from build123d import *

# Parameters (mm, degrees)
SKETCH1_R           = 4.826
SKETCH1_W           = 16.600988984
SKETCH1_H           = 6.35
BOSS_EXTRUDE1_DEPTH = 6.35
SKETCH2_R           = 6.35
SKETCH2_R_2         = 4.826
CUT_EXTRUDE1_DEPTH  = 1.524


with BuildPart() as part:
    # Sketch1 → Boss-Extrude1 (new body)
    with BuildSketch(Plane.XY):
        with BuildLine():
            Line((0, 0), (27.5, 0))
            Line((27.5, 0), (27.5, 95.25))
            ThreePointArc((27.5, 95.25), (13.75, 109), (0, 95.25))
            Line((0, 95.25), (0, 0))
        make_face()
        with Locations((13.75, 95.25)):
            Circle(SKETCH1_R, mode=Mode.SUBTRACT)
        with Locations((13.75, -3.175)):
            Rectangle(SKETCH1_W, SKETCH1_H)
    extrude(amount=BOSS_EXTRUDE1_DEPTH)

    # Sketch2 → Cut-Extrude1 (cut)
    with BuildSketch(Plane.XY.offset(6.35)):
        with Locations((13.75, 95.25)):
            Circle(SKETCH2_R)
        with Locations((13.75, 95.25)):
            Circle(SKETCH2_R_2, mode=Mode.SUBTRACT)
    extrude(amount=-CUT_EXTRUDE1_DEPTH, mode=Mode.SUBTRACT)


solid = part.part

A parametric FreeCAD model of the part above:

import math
import FreeCAD as App
import Part
import Sketcher
from FreeCAD import Vector
Q = App.Units.Quantity

doc = App.newDocument("Part")
params = doc.addObject("Spreadsheet::Sheet", "Params")
for row, (alias, value) in enumerate([
    ("sketch1_diameter", "0.38 in"),
    ("sketch1_height", "0.25 in"),
    ("pad1_length", "0.25 in"),
    ("sketch2_diameter", "0.5 in"),
    ("sketch2_diameter2", "0.38 in"),
    ("pocket1_length", "0.06 in"),
], start=1):
    params.set(f"A{row}", alias)
    params.set(f"B{row}", "=" + value)
    params.setAlias(f"B{row}", alias)

body = doc.addObject("PartDesign::Body", "Body")

# Sketch on XY plane
sketch1 = body.newObject("Sketcher::SketchObject", "Sketch")
sketch1.AttachmentSupport = (doc.getObject("XY_Plane"), [""])
sketch1.MapMode = "FlatFace"
sketch1.addGeometry(Part.LineSegment(Vector(0, 0, 0), Vector(5.449506, 0, 0)), False)
sketch1.addGeometry(Part.LineSegment(Vector(5.449506, 0, 0), Vector(5.449506, -6.35, 0)), False)
sketch1.addGeometry(Part.LineSegment(Vector(5.449506, -6.35, 0), Vector(22.050494, -6.35, 0)), False)
sketch1.addGeometry(Part.LineSegment(Vector(22.050494, -6.35, 0), Vector(22.050494, 0, 0)), False)
sketch1.addGeometry(Part.LineSegment(Vector(22.050494, 0, 0), Vector(27.5, 0, 0)), False)
sketch1.addGeometry(Part.LineSegment(Vector(27.5, 0, 0), Vector(27.5, 95.25, 0)), False)
sketch1.addGeometry(Part.ArcOfCircle(Part.Circle(Vector(13.75, 95.25, 0), Vector(0, 0, 1), 13.75), math.radians(0), math.radians(180)), False)
sketch1.addGeometry(Part.LineSegment(Vector(0, 95.25, 0), Vector(0, 0, 0)), False)
sketch1.addGeometry(Part.Circle(Vector(13.75, 95.25, 0), Vector(0, 0, 1), 4.826), False)
sketch1.addConstraint(Sketcher.Constraint("Coincident", 0, 2, 1, 1))
sketch1.addConstraint(Sketcher.Constraint("Coincident", 1, 2, 2, 1))
sketch1.addConstraint(Sketcher.Constraint("Coincident", 2, 2, 3, 1))
sketch1.addConstraint(Sketcher.Constraint("Coincident", 3, 2, 4, 1))
sketch1.addConstraint(Sketcher.Constraint("Coincident", 4, 2, 5, 1))
sketch1.addConstraint(Sketcher.Constraint("Tangent", 5, 2, 6, 1))
sketch1.addConstraint(Sketcher.Constraint("Tangent", 6, 2, 7, 1))
sketch1.addConstraint(Sketcher.Constraint("Coincident", 7, 2, 0, 1))
sketch1.addConstraint(Sketcher.Constraint("Horizontal", 0))
sketch1.addConstraint(Sketcher.Constraint("Vertical", 1))
sketch1.addConstraint(Sketcher.Constraint("Horizontal", 2))
sketch1.addConstraint(Sketcher.Constraint("Vertical", 3))
sketch1.addConstraint(Sketcher.Constraint("Horizontal", 4))
sketch1.addConstraint(Sketcher.Constraint("Vertical", 5))
sketch1.addConstraint(Sketcher.Constraint("Vertical", 7))
sketch1.addConstraint(Sketcher.Constraint("Coincident", 7, 2, -1, 1))
sketch1.addConstraint(Sketcher.Constraint("Coincident", 8, 3, 6, 3))
sketch1.addConstraint(Sketcher.Constraint("PointOnObject", 3, 2, -1))
sketch1.addConstraint(Sketcher.Constraint("Equal", 0, 4))
sketch1.addConstraint(Sketcher.Constraint("Diameter", 8, Q("0.38 in")))
sketch1.addConstraint(Sketcher.Constraint("DistanceY", 1, 2, 6, 3, Q("4 in")))
sketch1.addConstraint(Sketcher.Constraint("DistanceY", 1, 2, 1, 1, Q("0.25 in")))
sketch1.addConstraint(Sketcher.Constraint("Radius", 6, 13.75))
sketch1.addConstraint(Sketcher.Constraint("DistanceX", 2, 1, 2, 2, 16.600989))
sketch1.setExpression("Constraints[19]", "Params.sketch1_diameter")
sketch1.setExpression("Constraints[21]", "Params.sketch1_height")
pad1 = body.newObject("PartDesign::Pad", "Pad")
pad1.Profile = sketch1
pad1.setExpression("Length", "Params.pad1_length")

# Sketch on XY plane
sketch2 = body.newObject("Sketcher::SketchObject", "Sketch001")
sketch2.AttachmentSupport = (doc.getObject("XY_Plane"), [""])
sketch2.MapMode = "FlatFace"
sketch2.AttachmentOffset = App.Placement(Vector(0, 0, 0.25 * 25.4), App.Rotation())
sketch2.addGeometry(Part.Circle(Vector(13.75, 95.25, 0), Vector(0, 0, 1), 6.35), False)
sketch2.addGeometry(Part.Circle(Vector(13.75, 95.25, 0), Vector(0, 0, 1), 4.826), False)
sketch2.addConstraint(Sketcher.Constraint("Coincident", 1, 3, 0, 3))
sketch2.addConstraint(Sketcher.Constraint("Diameter", 0, Q("0.5 in")))
sketch2.addConstraint(Sketcher.Constraint("Diameter", 1, Q("0.38 in")))
sketch2.addConstraint(Sketcher.Constraint("DistanceY", -1, 1, 0, 3, Q("3.75 in")))
sketch2.addConstraint(Sketcher.Constraint("DistanceX", -1, 1, 0, 3, 13.75))
sketch2.setExpression("Constraints[1]", "Params.sketch2_diameter")
sketch2.setExpression("Constraints[2]", "Params.sketch2_diameter2")
pocket1 = body.newObject("PartDesign::Pocket", "Pocket")
pocket1.Profile = sketch2
pocket1.setExpression("Length", "Params.pocket1_length")

doc.recompute()
